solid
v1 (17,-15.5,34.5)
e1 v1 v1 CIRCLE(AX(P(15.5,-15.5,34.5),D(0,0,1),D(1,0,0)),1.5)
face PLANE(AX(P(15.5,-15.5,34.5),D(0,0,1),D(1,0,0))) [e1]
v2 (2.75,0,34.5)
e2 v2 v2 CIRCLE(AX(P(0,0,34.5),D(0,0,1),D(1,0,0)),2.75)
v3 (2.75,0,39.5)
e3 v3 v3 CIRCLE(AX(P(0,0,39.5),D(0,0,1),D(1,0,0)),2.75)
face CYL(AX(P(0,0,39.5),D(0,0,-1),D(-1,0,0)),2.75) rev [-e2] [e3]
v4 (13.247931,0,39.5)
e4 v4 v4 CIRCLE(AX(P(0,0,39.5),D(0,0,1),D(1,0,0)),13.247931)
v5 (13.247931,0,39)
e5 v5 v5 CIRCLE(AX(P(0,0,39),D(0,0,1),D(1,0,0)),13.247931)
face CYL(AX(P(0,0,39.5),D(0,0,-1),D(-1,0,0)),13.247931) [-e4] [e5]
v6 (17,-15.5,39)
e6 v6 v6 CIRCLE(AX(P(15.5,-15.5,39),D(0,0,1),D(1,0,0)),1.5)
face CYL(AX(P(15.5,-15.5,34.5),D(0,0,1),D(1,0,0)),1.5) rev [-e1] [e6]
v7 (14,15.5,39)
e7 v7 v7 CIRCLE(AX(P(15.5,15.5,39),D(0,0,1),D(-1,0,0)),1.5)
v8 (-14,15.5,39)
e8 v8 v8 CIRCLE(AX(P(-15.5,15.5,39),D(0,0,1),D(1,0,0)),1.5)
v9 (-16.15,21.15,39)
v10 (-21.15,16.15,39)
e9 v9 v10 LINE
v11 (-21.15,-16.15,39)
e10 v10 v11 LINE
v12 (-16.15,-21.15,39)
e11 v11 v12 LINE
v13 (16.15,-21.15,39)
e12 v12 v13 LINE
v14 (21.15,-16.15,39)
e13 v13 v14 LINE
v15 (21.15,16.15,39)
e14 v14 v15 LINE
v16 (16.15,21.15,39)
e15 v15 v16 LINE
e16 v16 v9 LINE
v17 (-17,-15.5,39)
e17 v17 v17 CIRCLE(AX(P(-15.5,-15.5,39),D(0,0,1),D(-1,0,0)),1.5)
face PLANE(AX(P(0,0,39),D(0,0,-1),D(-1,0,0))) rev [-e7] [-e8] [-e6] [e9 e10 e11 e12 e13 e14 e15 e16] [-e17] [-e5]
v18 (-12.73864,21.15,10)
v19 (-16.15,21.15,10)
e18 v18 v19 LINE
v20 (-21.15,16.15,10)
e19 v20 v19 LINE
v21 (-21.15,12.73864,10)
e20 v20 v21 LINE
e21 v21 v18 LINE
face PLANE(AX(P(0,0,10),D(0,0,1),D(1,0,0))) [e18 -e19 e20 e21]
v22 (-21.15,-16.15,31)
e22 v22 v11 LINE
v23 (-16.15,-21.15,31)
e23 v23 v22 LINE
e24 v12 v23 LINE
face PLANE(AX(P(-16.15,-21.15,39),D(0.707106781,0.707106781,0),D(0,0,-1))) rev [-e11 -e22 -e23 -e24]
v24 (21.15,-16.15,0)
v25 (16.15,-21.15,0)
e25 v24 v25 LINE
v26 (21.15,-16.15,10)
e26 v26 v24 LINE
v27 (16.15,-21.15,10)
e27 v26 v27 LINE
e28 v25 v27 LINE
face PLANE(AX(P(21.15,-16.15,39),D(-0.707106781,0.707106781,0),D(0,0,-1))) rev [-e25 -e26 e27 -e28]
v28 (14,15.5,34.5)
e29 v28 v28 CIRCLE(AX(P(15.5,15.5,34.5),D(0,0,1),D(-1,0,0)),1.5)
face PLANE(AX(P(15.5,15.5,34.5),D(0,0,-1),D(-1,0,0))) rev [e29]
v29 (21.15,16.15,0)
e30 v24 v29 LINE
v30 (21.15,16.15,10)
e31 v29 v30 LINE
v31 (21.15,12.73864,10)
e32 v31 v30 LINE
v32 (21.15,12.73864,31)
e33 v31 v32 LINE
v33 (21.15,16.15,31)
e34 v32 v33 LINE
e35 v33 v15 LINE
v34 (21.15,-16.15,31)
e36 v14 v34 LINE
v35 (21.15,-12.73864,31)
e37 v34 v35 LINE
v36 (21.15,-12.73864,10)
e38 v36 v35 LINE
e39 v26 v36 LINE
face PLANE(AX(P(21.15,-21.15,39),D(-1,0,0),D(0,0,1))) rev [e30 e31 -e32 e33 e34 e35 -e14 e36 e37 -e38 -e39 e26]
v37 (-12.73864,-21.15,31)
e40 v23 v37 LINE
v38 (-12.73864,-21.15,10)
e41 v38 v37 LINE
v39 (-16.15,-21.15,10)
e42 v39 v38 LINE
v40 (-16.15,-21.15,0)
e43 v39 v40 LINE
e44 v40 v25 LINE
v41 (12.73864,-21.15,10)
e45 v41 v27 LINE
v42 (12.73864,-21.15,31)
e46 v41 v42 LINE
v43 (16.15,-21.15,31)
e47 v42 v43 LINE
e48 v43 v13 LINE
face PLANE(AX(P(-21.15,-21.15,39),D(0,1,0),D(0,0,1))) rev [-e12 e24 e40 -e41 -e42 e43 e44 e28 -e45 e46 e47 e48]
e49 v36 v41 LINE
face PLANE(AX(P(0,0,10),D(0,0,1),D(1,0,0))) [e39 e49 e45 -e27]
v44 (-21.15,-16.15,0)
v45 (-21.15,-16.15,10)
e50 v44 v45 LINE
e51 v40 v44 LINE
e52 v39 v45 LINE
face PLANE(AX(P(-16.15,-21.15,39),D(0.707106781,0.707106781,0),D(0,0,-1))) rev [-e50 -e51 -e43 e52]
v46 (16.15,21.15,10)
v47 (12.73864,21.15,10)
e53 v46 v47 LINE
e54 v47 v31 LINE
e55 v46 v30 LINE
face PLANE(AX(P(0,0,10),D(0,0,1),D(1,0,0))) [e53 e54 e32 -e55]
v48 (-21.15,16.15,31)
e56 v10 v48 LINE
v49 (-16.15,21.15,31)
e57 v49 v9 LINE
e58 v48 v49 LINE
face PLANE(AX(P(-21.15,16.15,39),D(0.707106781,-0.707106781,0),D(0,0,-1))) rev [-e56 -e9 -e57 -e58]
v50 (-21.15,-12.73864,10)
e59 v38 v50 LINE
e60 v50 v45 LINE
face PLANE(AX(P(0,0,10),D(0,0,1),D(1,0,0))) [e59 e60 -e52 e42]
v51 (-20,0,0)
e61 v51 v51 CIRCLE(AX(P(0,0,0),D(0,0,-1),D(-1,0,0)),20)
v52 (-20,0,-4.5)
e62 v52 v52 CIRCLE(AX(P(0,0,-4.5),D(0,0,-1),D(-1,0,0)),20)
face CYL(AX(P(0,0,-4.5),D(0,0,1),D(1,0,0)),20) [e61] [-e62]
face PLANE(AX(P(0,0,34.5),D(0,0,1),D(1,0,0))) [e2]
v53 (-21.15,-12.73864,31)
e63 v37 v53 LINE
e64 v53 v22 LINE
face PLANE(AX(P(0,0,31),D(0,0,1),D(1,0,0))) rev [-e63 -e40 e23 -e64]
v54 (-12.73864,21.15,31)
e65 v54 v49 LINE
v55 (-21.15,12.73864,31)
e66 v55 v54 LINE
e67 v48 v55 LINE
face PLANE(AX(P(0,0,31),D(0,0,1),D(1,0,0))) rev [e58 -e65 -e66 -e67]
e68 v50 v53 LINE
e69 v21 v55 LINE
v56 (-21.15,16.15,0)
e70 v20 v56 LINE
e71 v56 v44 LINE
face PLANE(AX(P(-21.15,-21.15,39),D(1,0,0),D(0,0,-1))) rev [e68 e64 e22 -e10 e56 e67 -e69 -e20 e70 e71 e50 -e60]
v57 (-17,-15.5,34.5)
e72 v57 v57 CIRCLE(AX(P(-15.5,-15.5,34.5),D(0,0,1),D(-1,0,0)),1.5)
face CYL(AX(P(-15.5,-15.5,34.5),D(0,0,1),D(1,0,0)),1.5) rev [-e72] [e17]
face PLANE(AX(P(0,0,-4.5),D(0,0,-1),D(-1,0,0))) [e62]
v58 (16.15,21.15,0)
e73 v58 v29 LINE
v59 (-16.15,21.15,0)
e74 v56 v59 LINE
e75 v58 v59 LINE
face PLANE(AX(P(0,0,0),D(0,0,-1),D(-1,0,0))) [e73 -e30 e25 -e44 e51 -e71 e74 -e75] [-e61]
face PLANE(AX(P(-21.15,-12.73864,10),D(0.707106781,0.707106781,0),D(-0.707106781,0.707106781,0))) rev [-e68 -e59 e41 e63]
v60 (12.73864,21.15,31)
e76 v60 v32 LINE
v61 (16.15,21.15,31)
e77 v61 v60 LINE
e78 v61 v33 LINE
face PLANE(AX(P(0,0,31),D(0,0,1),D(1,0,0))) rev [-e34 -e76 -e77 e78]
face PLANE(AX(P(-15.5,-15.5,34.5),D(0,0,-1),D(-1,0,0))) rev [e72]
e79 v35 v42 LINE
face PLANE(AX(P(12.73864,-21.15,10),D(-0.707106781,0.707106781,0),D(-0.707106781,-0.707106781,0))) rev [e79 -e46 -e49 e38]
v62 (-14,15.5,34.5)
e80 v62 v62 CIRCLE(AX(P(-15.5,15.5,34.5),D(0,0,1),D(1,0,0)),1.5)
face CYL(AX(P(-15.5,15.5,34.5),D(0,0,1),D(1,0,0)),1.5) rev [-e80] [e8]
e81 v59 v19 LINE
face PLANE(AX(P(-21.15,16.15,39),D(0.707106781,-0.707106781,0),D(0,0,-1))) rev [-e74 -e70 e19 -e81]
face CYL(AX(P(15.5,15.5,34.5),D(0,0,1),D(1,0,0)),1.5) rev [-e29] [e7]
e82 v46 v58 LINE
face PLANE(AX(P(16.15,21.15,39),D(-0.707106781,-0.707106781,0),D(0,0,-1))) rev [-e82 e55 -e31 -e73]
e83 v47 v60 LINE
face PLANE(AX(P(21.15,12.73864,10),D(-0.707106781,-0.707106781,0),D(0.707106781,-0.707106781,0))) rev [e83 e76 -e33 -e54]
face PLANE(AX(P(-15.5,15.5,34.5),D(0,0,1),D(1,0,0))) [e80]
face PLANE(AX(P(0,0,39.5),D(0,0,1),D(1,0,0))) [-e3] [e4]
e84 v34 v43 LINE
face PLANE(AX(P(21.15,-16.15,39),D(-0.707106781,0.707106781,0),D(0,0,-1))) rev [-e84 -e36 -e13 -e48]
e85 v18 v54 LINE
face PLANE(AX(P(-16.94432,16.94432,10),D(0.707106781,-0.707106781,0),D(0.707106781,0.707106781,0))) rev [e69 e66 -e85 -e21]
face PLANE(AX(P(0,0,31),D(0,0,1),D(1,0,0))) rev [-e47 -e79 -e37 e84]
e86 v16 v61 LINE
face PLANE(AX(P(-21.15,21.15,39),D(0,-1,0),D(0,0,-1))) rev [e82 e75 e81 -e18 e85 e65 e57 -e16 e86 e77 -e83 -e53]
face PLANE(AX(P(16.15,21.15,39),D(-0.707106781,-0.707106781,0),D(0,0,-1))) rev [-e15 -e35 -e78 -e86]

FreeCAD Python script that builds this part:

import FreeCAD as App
import Part
import Sketcher

V = App.Vector
Q = App.Units.Quantity


def edges_at(feature, points):
    """Names of the edges that pass closest to the given points."""
    edges = feature.Shape.Edges
    near = lambda p: min(range(len(edges)), key=lambda i: edges[i].distToShape(Part.Vertex(*p))[0])
    return sorted({f"Edge{near(p) + 1}" for p in points})

doc = App.newDocument("Part")
body = doc.addObject("PartDesign::Body", "Body")

sketch1 = body.newObject("Sketcher::SketchObject", "Sketch")
sketch1.AttachmentSupport = (doc.getObject("XY_Plane"), [""])
sketch1.MapMode = "FlatFace"
sketch1.addGeometry(Part.LineSegment(V(-21.15, 21.15, 0), V(-21.15, -21.15, 0)), False)
sketch1.addGeometry(Part.LineSegment(V(-21.15, -21.15, 0), V(21.15, -21.15, 0)), False)
sketch1.addGeometry(Part.LineSegment(V(21.15, -21.15, 0), V(21.15, 21.15, 0)), False)
sketch1.addGeometry(Part.LineSegment(V(21.15, 21.15, 0), V(-21.15, 21.15, 0)), False)
sketch1.addConstraint(Sketcher.Constraint("Coincident", 0, 2, 1, 1))
sketch1.addConstraint(Sketcher.Constraint("Coincident", 1, 2, 2, 1))
sketch1.addConstraint(Sketcher.Constraint("Coincident", 2, 2, 3, 1))
sketch1.addConstraint(Sketcher.Constraint("Coincident", 3, 2, 0, 1))
sketch1.addConstraint(Sketcher.Constraint("Vertical", 0))
sketch1.addConstraint(Sketcher.Constraint("Horizontal", 1))
sketch1.addConstraint(Sketcher.Constraint("Vertical", 2))
sketch1.addConstraint(Sketcher.Constraint("Horizontal", 3))
sketch1.addConstraint(Sketcher.Constraint("Symmetric", 0, 2, 2, 2, -1, 1))
sketch1.addConstraint(Sketcher.Constraint("Equal", 3, 0))
sketch1.addConstraint(Sketcher.Constraint("DistanceX", 1, 1, 1, 2, Q("42.3 mm")))
pad1 = body.newObject("PartDesign::Pad", "Pad")
pad1.Profile = sketch1
pad1.Length = 39
doc.recompute()

chamfer = body.newObject("PartDesign::Chamfer", "Chamfer")
chamfer.Base = (pad1, edges_at(pad1, [
    (21.15, -21.15, 19.5),
    (-21.15, -21.15, 19.5),
    (-21.15, 21.15, 19.5),
    (21.15, 21.15, 19.5),
]))
chamfer.Size = 5

sketch2 = body.newObject("Sketcher::SketchObject", "Sketch001")
sketch2.AttachmentSupport = (doc.getObject("XY_Plane"), [""])
sketch2.MapMode = "FlatFace"
sketch2.AttachmentOffset = App.Placement(V(0, 0, 31), App.Rotation())
sketch2.addGeometry(Part.LineSegment(V(-21.15, 21.15, 0), V(-21.15, 12.73864, 0)), False)
sketch2.addGeometry(Part.LineSegment(V(-21.15, 12.73864, 0), V(-16.94432, 16.94432, 0)), False)
sketch2.addGeometry(Part.LineSegment(V(-16.94432, 16.94432, 0), V(-12.73864, 21.15, 0)), False)
sketch2.addGeometry(Part.LineSegment(V(-12.73864, 21.15, 0), V(-21.15, 21.15, 0)), False)
sketch2.addGeometry(Part.LineSegment(V(21.15, -21.15, 0), V(21.15, -12.73864, 0)), False)
sketch2.addGeometry(Part.LineSegment(V(21.15, -12.73864, 0), V(16.94432, -16.94432, 0)), False)
sketch2.addGeometry(Part.LineSegment(V(16.94432, -16.94432, 0), V(12.73864, -21.15, 0)), False)
sketch2.addGeometry(Part.LineSegment(V(12.73864, -21.15, 0), V(21.15, -21.15, 0)), False)
sketch2.addGeometry(Part.LineSegment(V(21.15, 21.15, 0), V(12.73864, 21.15, 0)), False)
sketch2.addGeometry(Part.LineSegment(V(12.73864, 21.15, 0), V(16.94432, 16.94432, 0)), False)
sketch2.addGeometry(Part.LineSegment(V(16.94432, 16.94432, 0), V(21.15, 12.73864, 0)), False)
sketch2.addGeometry(Part.LineSegment(V(21.15, 12.73864, 0), V(21.15, 21.15, 0)), False)
sketch2.addGeometry(Part.LineSegment(V(-21.15, -21.15, 0), V(-12.73864, -21.15, 0)), False)
sketch2.addGeometry(Part.LineSegment(V(-12.73864, -21.15, 0), V(-16.94432, -16.94432, 0)), False)
sketch2.addGeometry(Part.LineSegment(V(-16.94432, -16.94432, 0), V(-21.15, -12.73864, 0)), False)
sketch2.addGeometry(Part.LineSegment(V(-21.15, -12.73864, 0), V(-21.15, -21.15, 0)), False)
sketch2.addConstraint(Sketcher.Constraint("Coincident", 0, 2, 1, 1))
sketch2.addConstraint(Sketcher.Constraint("Coincident", 1, 2, 2, 1))
sketch2.addConstraint(Sketcher.Constraint("Coincident", 2, 2, 3, 1))
sketch2.addConstraint(Sketcher.Constraint("Coincident", 3, 2, 0, 1))
sketch2.addConstraint(Sketcher.Constraint("Coincident", 4, 2, 5, 1))
sketch2.addConstraint(Sketcher.Constraint("Coincident", 5, 2, 6, 1))
sketch2.addConstraint(Sketcher.Constraint("Coincident", 6, 2, 7, 1))
sketch2.addConstraint(Sketcher.Constraint("Coincident", 7, 2, 4, 1))
sketch2.addConstraint(Sketcher.Constraint("Coincident", 8, 2, 9, 1))
sketch2.addConstraint(Sketcher.Constraint("Coincident", 9, 2, 10, 1))
sketch2.addConstraint(Sketcher.Constraint("Coincident", 10, 2, 11, 1))
sketch2.addConstraint(Sketcher.Constraint("Coincident", 11, 2, 8, 1))
sketch2.addConstraint(Sketcher.Constraint("Coincident", 12, 2, 13, 1))
sketch2.addConstraint(Sketcher.Constraint("Coincident", 13, 2, 14, 1))
sketch2.addConstraint(Sketcher.Constraint("Coincident", 14, 2, 15, 1))
sketch2.addConstraint(Sketcher.Constraint("Coincident", 15, 2, 12, 1))
sketch2.addConstraint(Sketcher.Constraint("Vertical", 0))
sketch2.addConstraint(Sketcher.Constraint("Horizontal", 3))
sketch2.addConstraint(Sketcher.Constraint("Vertical", 4))
sketch2.addConstraint(Sketcher.Constraint("Horizontal", 7))
sketch2.addConstraint(Sketcher.Constraint("Horizontal", 8))
sketch2.addConstraint(Sketcher.Constraint("Vertical", 11))
sketch2.addConstraint(Sketcher.Constraint("Horizontal", 12))
sketch2.addConstraint(Sketcher.Constraint("Vertical", 15))
sketch2.addConstraint(Sketcher.Constraint("Symmetric", 0, 2, 4, 2, -1, 1))
sketch2.addConstraint(Sketcher.Constraint("Symmetric", 1, 2, 5, 2, -1, 1))
sketch2.addConstraint(Sketcher.Constraint("Symmetric", 2, 2, 6, 2, -1, 1))
sketch2.addConstraint(Sketcher.Constraint("Symmetric", 8, 2, 12, 2, -1, 1))
sketch2.addConstraint(Sketcher.Constraint("Symmetric", 9, 2, 13, 2, -1, 1))
sketch2.addConstraint(Sketcher.Constraint("Symmetric", 10, 2, 14, 2, -1, 1))
sketch2.addConstraint(Sketcher.Constraint("Symmetric", 2, 2, 8, 2, -2))
sketch2.addConstraint(Sketcher.Constraint("Symmetric", 1, 2, 9, 2, -2))
sketch2.addConstraint(Sketcher.Constraint("Symmetric", 0, 2, 10, 2, -2))
sketch2.addConstraint(Sketcher.Constraint("Parallel", 1, 2))
sketch2.addConstraint(Sketcher.Constraint("Perpendicular", 6, 9))
sketch2.addConstraint(Sketcher.Constraint("Equal", 1, 2))
sketch2.addConstraint(Sketcher.Constraint("DistanceX", 0, 2, 4, 2, Q("42.3 mm")))
sketch2.addConstraint(Sketcher.Constraint("DistanceY", 6, 2, 2, 2, Q("42.3 mm")))
sketch2.addConstraint(Sketcher.Constraint("DistanceX", 3, 2, 3, 1, Q("8.41136 mm")))
pocket1 = body.newObject("PartDesign::Pocket", "Pocket")
pocket1.Profile = sketch2
pocket1.Length = 21

sketch3 = body.newObject("Sketcher::SketchObject", "Sketch002")
sketch3.AttachmentSupport = (doc.getObject("XY_Plane"), [""])
sketch3.MapMode = "FlatFace"
sketch3.addGeometry(Part.Circle(V(0, 0, 0), V(0, 0, 1), 20), False)
sketch3.addConstraint(Sketcher.Constraint("Coincident", 0, 3, -1, 1))
sketch3.addConstraint(Sketcher.Constraint("Diameter", 0, Q("40 mm")))
pad2 = body.newObject("PartDesign::Pad", "Pad001")
pad2.Profile = sketch3
pad2.Length = 4.5
pad2.Reversed = True

sketch4 = body.newObject("Sketcher::SketchObject", "Sketch003")
sketch4.AttachmentSupport = (doc.getObject("XY_Plane"), [""])
sketch4.MapMode = "FlatFace"
sketch4.AttachmentOffset = App.Placement(V(0, 0, 39), App.Rotation())
sketch4.addGeometry(Part.Circle(V(-15.5, 15.5, 0), V(0, 0, 1), 1.5), False)
sketch4.addGeometry(Part.Circle(V(-15.5, -15.5, 0), V(0, 0, 1), 1.5), False)
sketch4.addGeometry(Part.Circle(V(15.5, 15.5, 0), V(0, 0, 1), 1.5), False)
sketch4.addGeometry(Part.Circle(V(15.5, -15.5, 0), V(0, 0, 1), 1.5), False)
sketch4.addConstraint(Sketcher.Constraint("Equal", 0, 1))
sketch4.addConstraint(Sketcher.Constraint("Equal", 1, 2))
sketch4.addConstraint(Sketcher.Constraint("Equal", 2, 3))
sketch4.addConstraint(Sketcher.Constraint("Symmetric", 1, 3, 2, 3, -1, 1))
sketch4.addConstraint(Sketcher.Constraint("Symmetric", 0, 3, 3, 3, -1, 1))
sketch4.addConstraint(Sketcher.Constraint("Symmetric", 0, 3, 2, 3, -2))
sketch4.addConstraint(Sketcher.Constraint("Diameter", 0, Q("3 mm")))
sketch4.addConstraint(Sketcher.Constraint("DistanceY", 1, 3, 0, 3, Q("31 mm")))
sketch4.addConstraint(Sketcher.Constraint("DistanceX", 0, 3, 2, 3, Q("31 mm")))
pocket2 = body.newObject("PartDesign::Pocket", "Pocket001")
pocket2.Profile = sketch4
pocket2.Length = 4.5

sketch5 = body.newObject("Sketcher::SketchObject", "Sketch004")
sketch5.AttachmentSupport = (doc.getObject("XY_Plane"), [""])
sketch5.MapMode = "FlatFace"
sketch5.AttachmentOffset = App.Placement(V(0, 0, 39), App.Rotation())
sketch5.addGeometry(Part.Circle(V(0, 0, 0), V(0, 0, 1), 13.247931), False)
sketch5.addConstraint(Sketcher.Constraint("Coincident", 0, 3, -1, 1))
sketch5.addConstraint(Sketcher.Constraint("Diameter", 0, Q("26.495861 mm")))
pad3 = body.newObject("PartDesign::Pad", "Pad002")
pad3.Profile = sketch5
pad3.Length = 0.5

sketch6 = body.newObject("Sketcher::SketchObject", "Sketch005")
sketch6.AttachmentSupport = (doc.getObject("XY_Plane"), [""])
sketch6.MapMode = "FlatFace"
sketch6.AttachmentOffset = App.Placement(V(0, 0, 39), App.Rotation())
sketch6.addGeometry(Part.Circle(V(0, 0, 0), V(0, 0, 1), 2.75), False)
sketch6.addConstraint(Sketcher.Constraint("Coincident", 0, 3, -1, 1))
sketch6.addConstraint(Sketcher.Constraint("Diameter", 0, Q("5.5 mm")))
pocket3 = body.newObject("PartDesign::Pocket", "Pocket002")
pocket3.Profile = sketch6
pocket3.Type = "TwoLengths"
pocket3.Length = 53.79105
pocket3.Length2 = 4.5
pocket3.Reversed = True

doc.recompute()
